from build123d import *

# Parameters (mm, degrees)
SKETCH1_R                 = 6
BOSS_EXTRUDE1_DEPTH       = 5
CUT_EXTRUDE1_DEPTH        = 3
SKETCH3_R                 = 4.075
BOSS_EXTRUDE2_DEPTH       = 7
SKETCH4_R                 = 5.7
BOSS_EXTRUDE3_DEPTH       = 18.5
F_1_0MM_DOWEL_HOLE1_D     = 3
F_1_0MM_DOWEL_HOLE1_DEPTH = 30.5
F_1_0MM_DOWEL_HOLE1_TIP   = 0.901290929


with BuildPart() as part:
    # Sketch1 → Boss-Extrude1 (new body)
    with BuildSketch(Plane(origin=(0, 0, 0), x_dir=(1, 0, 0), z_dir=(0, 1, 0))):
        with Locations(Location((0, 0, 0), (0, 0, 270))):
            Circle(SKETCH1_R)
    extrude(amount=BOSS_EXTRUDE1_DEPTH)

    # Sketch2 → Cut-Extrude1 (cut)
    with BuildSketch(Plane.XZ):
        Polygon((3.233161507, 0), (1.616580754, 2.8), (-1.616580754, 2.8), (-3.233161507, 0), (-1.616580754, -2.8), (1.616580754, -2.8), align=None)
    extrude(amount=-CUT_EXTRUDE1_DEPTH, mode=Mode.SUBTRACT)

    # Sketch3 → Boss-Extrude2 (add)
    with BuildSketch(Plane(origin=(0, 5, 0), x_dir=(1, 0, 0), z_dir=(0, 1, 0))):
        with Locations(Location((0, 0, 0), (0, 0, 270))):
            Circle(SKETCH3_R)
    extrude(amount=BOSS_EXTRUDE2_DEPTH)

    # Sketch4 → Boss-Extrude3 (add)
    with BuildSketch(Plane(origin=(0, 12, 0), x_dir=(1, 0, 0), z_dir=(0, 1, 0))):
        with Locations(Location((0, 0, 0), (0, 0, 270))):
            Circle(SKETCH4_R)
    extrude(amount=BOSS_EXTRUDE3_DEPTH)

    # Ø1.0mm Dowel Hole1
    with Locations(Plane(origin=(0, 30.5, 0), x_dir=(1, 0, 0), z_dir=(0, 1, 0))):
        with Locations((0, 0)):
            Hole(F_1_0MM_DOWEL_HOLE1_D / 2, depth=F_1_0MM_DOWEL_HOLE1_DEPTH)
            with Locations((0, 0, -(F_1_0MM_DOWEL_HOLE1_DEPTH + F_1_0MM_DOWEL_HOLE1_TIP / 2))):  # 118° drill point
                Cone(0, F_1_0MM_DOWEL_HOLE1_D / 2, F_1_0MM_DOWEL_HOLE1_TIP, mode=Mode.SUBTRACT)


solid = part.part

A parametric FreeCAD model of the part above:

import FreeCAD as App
import Part
import Sketcher
from FreeCAD import Vector
Q = App.Units.Quantity


def add_polygon(sketch, points):
    """Adds a closed chain of lines whose ends are joined by coincident constraints."""
    first, n = sketch.GeometryCount, len(points)
    for a, b in zip(points, points[1:] + points[:1]):
        sketch.addGeometry(Part.LineSegment(App.Vector(*a, 0), App.Vector(*b, 0)), False)
    for i in range(n):
        sketch.addConstraint(Sketcher.Constraint("Coincident", first + i, 2, first + (i + 1) % n, 1))

doc = App.newDocument("Part")
body = doc.addObject("PartDesign::Body", "Body")

sketch1 = body.newObject("Sketcher::SketchObject", "Sketch")
sketch1.AttachmentSupport = (doc.getObject("XZ_Plane"), [""])
sketch1.MapMode = "FlatFace"
sketch1.addGeometry(Part.Circle(Vector(0, 0, 0), Vector(0, 0, 1), 6), False)
sketch1.addConstraint(Sketcher.Constraint("Coincident", 0, 3, -1, 1))
sketch1.addConstraint(Sketcher.Constraint("Diameter", 0, Q("12 mm")))
pad1 = body.newObject("PartDesign::Pad", "Pad")
pad1.Profile = sketch1
pad1.Length = 5
pad1.Reversed = True

sketch2 = body.newObject("Sketcher::SketchObject", "Sketch001")
sketch2.AttachmentSupport = (doc.getObject("XZ_Plane"), [""])
sketch2.MapMode = "FlatFace"
add_polygon(sketch2, [(3.2, 0), (1.6, 2.8), (-1.6, 2.8), (-3.2, 0), (-1.6, -2.8), (1.6, -2.8)])
sketch2.addConstraint(Sketcher.Constraint("Horizontal", 1))
sketch2.addConstraint(Sketcher.Constraint("Horizontal", 4))
sketch2.addConstraint(Sketcher.Constraint("Symmetric", 0, 2, 3, 2, -1, 1))
sketch2.addConstraint(Sketcher.Constraint("Symmetric", 2, 2, 5, 2, -1, 1))
sketch2.addConstraint(Sketcher.Constraint("PointOnObject", 2, 2, -1))
sketch2.addConstraint(Sketcher.Constraint("Parallel", 2, 5))
sketch2.addConstraint(Sketcher.Constraint("Vertical", 1, 2, 3, 2))
sketch2.addConstraint(Sketcher.Constraint("Angle", 0, Q("120 deg")))
sketch2.addConstraint(Sketcher.Constraint("DistanceY", -1, 1, 0, 2, Q("2.8 mm")))
sketch2.addConstraint(Sketcher.Constraint("DistanceX", 1, 2, 1, 1, Q("3.233162 mm")))
pocket1 = body.newObject("PartDesign::Pocket", "Pocket")
pocket1.Profile = sketch2
pocket1.Length = 3

sketch3 = body.newObject("Sketcher::SketchObject", "Sketch002")
sketch3.AttachmentSupport = (doc.getObject("XZ_Plane"), [""])
sketch3.MapMode = "FlatFace"
sketch3.AttachmentOffset = App.Placement(Vector(0, 0, -5), App.Rotation())
sketch3.addGeometry(Part.Circle(Vector(0, 0, 0), Vector(0, 0, 1), 4.1), False)
sketch3.addConstraint(Sketcher.Constraint("Coincident", 0, 3, -1, 1))
sketch3.addConstraint(Sketcher.Constraint("Diameter", 0, Q("8.15 mm")))
pad2 = body.newObject("PartDesign::Pad", "Pad001")
pad2.Profile = sketch3
pad2.Length = 7
pad2.Reversed = True

sketch4 = body.newObject("Sketcher::SketchObject", "Sketch003")
sketch4.AttachmentSupport = (doc.getObject("XZ_Plane"), [""])
sketch4.MapMode = "FlatFace"
sketch4.AttachmentOffset = App.Placement(Vector(0, 0, -12), App.Rotation())
sketch4.addGeometry(Part.Circle(Vector(0, 0, 0), Vector(0, 0, 1), 6), False)
sketch4.addConstraint(Sketcher.Constraint("Coincident", 0, 3, -1, 1))
sketch4.addConstraint(Sketcher.Constraint("Diameter", 0, Q("11.4 mm")))
pad3 = body.newObject("PartDesign::Pad", "Pad002")
pad3.Profile = sketch4
pad3.Length = 18.5
pad3.Reversed = True

sketch5 = body.newObject("Sketcher::SketchObject", "Sketch004")
sketch5.AttachmentSupport = (doc.getObject("XZ_Plane"), [""])
sketch5.MapMode = "FlatFace"
sketch5.AttachmentOffset = App.Placement(Vector(0, 0, -30.5), App.Rotation())
sketch5.addGeometry(Part.Circle(Vector(0, 0, 0), Vector(0, 0, 1), 1.5), False)
sketch5.addConstraint(Sketcher.Constraint("Coincident", 0, 3, -1, 1))
sketch5.addConstraint(Sketcher.Constraint("Diameter", 0, Q("3 mm")))
doc.recompute()
hole = body.newObject("PartDesign::Hole", "Hole")
hole.Profile = sketch5
hole.ThreadType = "None"
hole.Diameter = 3
hole.DepthType = "Dimension"
hole.Depth = 30.5
hole.DrillPoint = "Angled"
hole.DrillPointAngle = 118
hole.Reversed = True

doc.recompute()
